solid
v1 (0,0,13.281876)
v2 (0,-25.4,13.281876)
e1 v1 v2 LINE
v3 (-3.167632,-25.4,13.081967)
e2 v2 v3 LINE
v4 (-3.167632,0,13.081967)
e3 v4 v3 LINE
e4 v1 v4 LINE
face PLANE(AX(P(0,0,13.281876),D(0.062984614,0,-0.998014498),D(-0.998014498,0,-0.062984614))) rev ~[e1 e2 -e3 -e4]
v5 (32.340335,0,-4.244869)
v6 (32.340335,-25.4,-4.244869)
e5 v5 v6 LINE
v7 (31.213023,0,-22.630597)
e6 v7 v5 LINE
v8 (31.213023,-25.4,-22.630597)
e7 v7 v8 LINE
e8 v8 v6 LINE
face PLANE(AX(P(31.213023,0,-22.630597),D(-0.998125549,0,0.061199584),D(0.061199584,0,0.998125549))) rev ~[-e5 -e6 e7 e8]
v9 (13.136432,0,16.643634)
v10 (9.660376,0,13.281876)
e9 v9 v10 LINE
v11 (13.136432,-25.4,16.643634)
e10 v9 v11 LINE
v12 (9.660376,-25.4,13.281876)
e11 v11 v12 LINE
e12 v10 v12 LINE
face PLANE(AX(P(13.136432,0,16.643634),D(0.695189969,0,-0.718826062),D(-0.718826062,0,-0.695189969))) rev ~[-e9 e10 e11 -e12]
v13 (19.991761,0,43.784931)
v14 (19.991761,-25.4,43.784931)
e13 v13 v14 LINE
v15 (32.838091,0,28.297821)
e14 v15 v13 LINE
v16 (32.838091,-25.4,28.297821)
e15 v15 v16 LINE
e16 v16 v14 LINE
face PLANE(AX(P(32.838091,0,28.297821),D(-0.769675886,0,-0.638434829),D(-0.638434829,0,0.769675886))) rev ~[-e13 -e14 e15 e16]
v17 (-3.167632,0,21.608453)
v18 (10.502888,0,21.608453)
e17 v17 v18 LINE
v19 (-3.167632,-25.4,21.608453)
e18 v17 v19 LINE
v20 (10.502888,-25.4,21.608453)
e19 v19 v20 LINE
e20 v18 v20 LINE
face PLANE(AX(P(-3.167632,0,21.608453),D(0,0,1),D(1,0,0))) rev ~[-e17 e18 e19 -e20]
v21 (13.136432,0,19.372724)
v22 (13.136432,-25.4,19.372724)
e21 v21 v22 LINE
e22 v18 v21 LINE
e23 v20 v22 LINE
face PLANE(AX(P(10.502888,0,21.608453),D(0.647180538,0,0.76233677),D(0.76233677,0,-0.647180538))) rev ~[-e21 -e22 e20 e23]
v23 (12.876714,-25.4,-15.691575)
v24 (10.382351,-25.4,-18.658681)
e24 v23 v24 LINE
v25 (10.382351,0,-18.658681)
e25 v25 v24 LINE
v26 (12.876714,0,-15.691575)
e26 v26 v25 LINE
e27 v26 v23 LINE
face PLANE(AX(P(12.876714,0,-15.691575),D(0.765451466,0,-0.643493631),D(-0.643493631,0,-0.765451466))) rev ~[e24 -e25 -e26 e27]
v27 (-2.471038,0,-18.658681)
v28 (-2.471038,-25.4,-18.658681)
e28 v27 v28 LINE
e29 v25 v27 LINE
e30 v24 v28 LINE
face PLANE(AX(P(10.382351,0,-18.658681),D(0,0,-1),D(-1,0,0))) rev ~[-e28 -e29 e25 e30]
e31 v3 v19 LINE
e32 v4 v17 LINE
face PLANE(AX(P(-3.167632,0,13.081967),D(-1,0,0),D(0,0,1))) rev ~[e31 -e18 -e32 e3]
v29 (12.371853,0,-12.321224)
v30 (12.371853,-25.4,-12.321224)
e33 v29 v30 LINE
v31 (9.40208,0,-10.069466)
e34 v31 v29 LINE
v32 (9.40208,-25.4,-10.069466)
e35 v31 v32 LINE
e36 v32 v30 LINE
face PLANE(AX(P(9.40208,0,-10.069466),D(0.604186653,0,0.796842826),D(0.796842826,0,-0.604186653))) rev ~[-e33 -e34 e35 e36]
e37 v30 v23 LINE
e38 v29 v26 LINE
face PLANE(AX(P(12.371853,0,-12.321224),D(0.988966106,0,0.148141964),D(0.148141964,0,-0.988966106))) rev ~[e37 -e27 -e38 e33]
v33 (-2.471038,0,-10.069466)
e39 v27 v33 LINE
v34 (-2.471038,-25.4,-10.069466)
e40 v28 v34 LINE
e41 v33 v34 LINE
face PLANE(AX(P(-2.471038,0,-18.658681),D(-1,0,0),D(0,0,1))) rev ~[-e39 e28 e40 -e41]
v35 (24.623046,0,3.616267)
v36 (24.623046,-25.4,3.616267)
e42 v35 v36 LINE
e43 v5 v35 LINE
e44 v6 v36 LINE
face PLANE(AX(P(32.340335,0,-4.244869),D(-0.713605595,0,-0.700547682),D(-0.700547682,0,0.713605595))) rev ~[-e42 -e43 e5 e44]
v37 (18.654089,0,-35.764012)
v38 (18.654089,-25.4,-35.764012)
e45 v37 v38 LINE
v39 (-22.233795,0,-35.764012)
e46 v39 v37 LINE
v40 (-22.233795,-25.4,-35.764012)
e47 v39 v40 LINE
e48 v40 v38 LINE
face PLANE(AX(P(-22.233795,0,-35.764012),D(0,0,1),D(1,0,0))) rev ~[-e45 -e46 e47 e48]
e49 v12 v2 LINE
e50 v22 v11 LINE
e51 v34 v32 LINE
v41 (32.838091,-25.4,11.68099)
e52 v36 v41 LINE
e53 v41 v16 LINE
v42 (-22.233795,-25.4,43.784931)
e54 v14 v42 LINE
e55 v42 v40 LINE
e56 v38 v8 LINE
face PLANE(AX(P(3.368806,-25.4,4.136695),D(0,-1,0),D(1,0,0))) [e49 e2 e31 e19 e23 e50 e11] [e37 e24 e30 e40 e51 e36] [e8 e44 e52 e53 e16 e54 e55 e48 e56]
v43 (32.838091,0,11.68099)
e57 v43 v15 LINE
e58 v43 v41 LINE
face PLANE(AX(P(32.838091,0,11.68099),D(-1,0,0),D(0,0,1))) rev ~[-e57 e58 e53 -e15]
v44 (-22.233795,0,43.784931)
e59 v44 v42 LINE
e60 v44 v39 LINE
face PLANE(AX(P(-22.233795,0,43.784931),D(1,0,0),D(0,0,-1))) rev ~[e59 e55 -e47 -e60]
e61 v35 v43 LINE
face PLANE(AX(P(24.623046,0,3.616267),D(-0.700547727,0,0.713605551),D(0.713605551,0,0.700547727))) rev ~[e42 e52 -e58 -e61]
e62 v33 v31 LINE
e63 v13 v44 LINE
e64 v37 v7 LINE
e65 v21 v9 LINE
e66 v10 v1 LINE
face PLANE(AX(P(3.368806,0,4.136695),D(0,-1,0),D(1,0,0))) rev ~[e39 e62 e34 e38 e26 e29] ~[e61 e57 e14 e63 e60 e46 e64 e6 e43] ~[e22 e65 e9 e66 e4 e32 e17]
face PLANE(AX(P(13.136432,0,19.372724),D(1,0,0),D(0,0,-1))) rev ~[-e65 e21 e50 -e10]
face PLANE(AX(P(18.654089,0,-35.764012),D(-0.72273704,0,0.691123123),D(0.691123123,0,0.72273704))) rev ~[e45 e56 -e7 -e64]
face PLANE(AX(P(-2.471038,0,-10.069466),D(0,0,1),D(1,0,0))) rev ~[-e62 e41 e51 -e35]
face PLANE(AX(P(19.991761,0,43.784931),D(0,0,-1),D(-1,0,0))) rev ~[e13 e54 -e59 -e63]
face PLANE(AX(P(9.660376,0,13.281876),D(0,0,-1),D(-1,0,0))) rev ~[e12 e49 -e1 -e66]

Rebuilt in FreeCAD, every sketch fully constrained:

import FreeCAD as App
import Part
import Sketcher

V = App.Vector
Q = App.Units.Quantity


def add_polygon(sketch, points):
    """Adds a closed chain of lines whose ends are joined by coincident constraints."""
    first, n = sketch.GeometryCount, len(points)
    for a, b in zip(points, points[1:] + points[:1]):
        sketch.addGeometry(Part.LineSegment(App.Vector(*a, 0), App.Vector(*b, 0)), False)
    for i in range(n):
        sketch.addConstraint(Sketcher.Constraint("Coincident", first + i, 2, first + (i + 1) % n, 1))

doc = App.newDocument("Part")
body = doc.addObject("PartDesign::Body", "Body")

# Sketch on XZ plane
sketch1 = doc.addObject("Sketcher::SketchObject", "Sketch")
body.addObject(sketch1)
sketch1.AttachmentSupport = (doc.XZ_Plane, [""])
sketch1.MapMode = "FlatFace"
add_polygon(sketch1, [(18.7, -35.8), (31.2, -22.6), (32.3, -4.2), (24.6, 3.6), (32.8, 11.7), (32.8, 28.3), (20, 43.8), (-22.2, 43.8), (-22.2, -35.8)])  # lines 0-8
add_polygon(sketch1, [(9.4, -10.1), (12.4, -12.3), (12.9, -15.7), (10.4, -18.7), (-2.5, -18.7), (-2.5, -10.1)])  # lines 9-14
add_polygon(sketch1, [(13.1, 16.6), (9.7, 13.3), (0, 13.3), (-3.2, 13.1), (-3.2, 21.6), (10.5, 21.6), (13.1, 19.4)])  # lines 15-21
sketch1.addConstraint([
    Sketcher.Constraint("Vertical", 4),
    Sketcher.Constraint("Horizontal", 6),
    Sketcher.Constraint("Vertical", 7),
    Sketcher.Constraint("Horizontal", 8),
    Sketcher.Constraint("Horizontal", 12),
    Sketcher.Constraint("Vertical", 13),
    Sketcher.Constraint("Horizontal", 14),
    Sketcher.Constraint("Horizontal", 16),
    Sketcher.Constraint("Vertical", 18),
    Sketcher.Constraint("Horizontal", 19),
    Sketcher.Constraint("Vertical", 21),
    Sketcher.Constraint("PointOnObject", 16, 2, -2),
    Sketcher.Constraint("Perpendicular", 2, 3),
    Sketcher.Constraint("Distance", 5, Q("20.1216 mm")),
    Sketcher.Constraint("DistanceX", 12, 2, 12, 1, Q("12.853389 mm")),
    Sketcher.Constraint("DistanceX", 19, 1, 19, 2, Q("13.67052 mm")),
    Sketcher.Constraint("DistanceY", 4, 1, 4, 2, Q("16.616831 mm")),
    Sketcher.Constraint("DistanceY", 21, 2, 21, 1, Q("2.72909 mm")),
    Sketcher.Constraint("DistanceY", 1, 2, 5, 2, Q("48.0298 mm")),
    Sketcher.Constraint("DistanceX", 11, 2, 9, 2, Q("1.989502 mm")),
    Sketcher.Constraint("DistanceY", 9, 2, 15, 2, Q("25.6031 mm")),
    Sketcher.Constraint("DistanceY", 2, 2, 17, 2, Q("9.4657 mm")),
    Sketcher.Constraint("Distance", 2, Q("11.01608 mm")),
    Sketcher.Constraint("Distance", 15, Q("4.83574 mm")),
    Sketcher.Constraint("DistanceX", 6, 2, 6, 1, Q("42.225556 mm")),
    Sketcher.Constraint("DistanceX", 8, 1, 8, 2, Q("40.887884 mm")),
    Sketcher.Constraint("DistanceX", 14, 1, 14, 2, Q("11.873118 mm")),
    Sketcher.Constraint("DistanceX", 16, 2, 16, 1, Q("9.660376 mm")),
    Sketcher.Constraint("DistanceY", 7, 2, 7, 1, Q("79.548943 mm")),
    Sketcher.Constraint("DistanceY", 13, 1, 13, 2, Q("8.589215 mm")),
    Sketcher.Constraint("DistanceY", 18, 1, 18, 2, Q("8.526486 mm")),
    Sketcher.Constraint("DistanceY", 1, 2, -1, 1, Q("4.244869 mm")),
    Sketcher.Constraint("DistanceX", -1, 1, 3, 2, Q("32.838091 mm")),
    Sketcher.Constraint("DistanceY", -1, 1, 3, 2, Q("11.68099 mm")),
    Sketcher.Constraint("DistanceX", -1, 1, 11, 2, Q("10.382351 mm")),
    Sketcher.Constraint("DistanceY", 11, 2, -1, 1, Q("18.658681 mm")),
    Sketcher.Constraint("DistanceX", 17, 2, -1, 1, Q("3.167632 mm")),
    Sketcher.Constraint("DistanceX", -1, 1, 20, 2, Q("13.136432 mm")),
    Sketcher.Constraint("DistanceY", 0, 2, 1, 2, Q("18.385728 mm")),
    Sketcher.Constraint("DistanceX", 2, 2, 1, 2, Q("7.717289 mm")),
    Sketcher.Constraint("DistanceY", 9, 2, 2, 2, Q("15.937491 mm")),
    Sketcher.Constraint("DistanceX", 9, 2, 0, 2, Q("18.84117 mm")),
    Sketcher.Constraint("DistanceX", 9, 2, 10, 2, Q("0.504861 mm")),
    Sketcher.Constraint("DistanceY", 10, 2, 9, 2, Q("3.370351 mm")),
])
pad1 = doc.addObject("PartDesign::Pad", "Pad")
body.addObject(pad1)
pad1.Profile = sketch1
pad1.Length = Q("1 in")

doc.recompute()
